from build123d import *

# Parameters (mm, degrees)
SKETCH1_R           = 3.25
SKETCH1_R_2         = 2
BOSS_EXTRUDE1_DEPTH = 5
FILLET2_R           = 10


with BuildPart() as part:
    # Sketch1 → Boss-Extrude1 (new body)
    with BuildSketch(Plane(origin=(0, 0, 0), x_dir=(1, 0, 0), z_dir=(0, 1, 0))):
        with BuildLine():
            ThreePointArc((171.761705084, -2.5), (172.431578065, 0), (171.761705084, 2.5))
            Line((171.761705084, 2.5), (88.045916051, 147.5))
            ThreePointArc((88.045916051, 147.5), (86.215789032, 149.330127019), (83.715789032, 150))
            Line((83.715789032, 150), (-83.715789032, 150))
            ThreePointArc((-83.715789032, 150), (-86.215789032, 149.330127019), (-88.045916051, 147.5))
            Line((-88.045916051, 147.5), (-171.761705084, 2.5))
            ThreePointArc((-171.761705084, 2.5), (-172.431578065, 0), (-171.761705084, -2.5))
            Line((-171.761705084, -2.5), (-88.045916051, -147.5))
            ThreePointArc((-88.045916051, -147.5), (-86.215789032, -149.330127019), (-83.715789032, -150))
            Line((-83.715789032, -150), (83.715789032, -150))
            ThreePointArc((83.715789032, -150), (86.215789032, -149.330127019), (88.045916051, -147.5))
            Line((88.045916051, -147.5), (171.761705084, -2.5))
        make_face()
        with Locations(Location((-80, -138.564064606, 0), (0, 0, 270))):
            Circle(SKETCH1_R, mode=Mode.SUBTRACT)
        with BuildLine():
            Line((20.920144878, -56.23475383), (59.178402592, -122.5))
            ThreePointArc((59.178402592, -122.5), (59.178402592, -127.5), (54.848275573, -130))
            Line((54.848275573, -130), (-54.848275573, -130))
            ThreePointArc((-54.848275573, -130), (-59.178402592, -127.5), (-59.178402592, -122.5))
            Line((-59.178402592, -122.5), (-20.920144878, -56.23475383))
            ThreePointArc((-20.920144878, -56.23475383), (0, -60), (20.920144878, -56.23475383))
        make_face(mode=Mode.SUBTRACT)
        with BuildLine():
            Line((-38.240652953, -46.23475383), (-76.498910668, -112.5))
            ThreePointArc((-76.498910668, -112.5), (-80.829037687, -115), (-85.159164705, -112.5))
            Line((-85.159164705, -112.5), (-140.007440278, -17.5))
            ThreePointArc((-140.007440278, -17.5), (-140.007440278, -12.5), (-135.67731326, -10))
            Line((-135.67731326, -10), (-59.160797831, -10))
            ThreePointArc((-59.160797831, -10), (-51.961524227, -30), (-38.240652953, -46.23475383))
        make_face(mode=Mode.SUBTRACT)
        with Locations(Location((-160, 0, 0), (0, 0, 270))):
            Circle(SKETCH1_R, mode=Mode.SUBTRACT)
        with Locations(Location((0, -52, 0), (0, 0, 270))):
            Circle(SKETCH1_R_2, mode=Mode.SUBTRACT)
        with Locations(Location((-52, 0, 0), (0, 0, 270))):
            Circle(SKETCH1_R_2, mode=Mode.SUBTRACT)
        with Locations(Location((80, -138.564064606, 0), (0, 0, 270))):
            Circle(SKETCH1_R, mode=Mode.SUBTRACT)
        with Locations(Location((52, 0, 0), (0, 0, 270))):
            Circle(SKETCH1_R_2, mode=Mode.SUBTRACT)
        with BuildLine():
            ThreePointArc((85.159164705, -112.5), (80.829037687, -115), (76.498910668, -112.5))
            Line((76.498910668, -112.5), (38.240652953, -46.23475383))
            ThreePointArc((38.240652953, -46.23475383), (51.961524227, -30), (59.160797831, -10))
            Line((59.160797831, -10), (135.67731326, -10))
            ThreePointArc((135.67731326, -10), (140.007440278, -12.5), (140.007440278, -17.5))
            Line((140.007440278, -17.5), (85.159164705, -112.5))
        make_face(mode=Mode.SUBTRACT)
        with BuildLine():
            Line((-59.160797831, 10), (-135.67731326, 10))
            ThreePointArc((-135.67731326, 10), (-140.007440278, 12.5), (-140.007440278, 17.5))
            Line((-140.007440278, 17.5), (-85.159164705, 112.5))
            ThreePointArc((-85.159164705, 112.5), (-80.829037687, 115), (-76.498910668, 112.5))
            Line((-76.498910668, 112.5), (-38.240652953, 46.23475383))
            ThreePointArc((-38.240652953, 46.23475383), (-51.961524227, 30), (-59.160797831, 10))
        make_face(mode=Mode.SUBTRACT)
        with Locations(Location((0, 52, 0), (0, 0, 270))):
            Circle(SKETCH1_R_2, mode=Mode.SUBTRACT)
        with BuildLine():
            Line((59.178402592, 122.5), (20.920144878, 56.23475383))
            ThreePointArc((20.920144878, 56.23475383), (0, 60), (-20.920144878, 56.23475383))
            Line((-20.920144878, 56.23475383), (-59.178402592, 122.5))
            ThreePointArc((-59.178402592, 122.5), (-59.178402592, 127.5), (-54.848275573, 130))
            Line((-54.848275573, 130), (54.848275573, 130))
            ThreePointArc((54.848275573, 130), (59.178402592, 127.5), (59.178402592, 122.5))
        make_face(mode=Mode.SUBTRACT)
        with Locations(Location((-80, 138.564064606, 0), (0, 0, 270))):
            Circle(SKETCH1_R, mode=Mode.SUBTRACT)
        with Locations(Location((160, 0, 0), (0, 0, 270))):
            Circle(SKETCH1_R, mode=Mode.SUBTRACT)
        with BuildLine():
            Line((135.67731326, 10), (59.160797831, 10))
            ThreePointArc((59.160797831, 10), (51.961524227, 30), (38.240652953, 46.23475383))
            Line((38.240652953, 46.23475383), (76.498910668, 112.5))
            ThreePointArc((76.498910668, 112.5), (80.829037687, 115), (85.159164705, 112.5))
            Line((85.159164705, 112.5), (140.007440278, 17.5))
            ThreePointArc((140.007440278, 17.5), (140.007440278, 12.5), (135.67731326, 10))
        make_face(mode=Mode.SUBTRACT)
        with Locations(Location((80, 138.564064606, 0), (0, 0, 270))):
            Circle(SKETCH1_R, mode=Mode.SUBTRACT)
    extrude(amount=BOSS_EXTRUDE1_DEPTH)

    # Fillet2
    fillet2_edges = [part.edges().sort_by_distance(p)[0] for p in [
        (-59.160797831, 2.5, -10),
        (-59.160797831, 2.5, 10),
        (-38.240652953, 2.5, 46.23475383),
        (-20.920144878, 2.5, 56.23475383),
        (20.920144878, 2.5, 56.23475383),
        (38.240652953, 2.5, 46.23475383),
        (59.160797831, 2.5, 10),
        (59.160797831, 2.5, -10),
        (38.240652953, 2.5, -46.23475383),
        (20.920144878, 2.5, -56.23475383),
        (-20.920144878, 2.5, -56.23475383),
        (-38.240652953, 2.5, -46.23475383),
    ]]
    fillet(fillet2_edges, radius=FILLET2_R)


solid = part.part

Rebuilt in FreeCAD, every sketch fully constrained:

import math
import FreeCAD as App
import Part
import Sketcher
from FreeCAD import Vector
Q = App.Units.Quantity


def edges_at(feature, points):
    """Names of the edges that pass closest to the given points."""
    edges = feature.Shape.Edges
    near = lambda p: min(range(len(edges)), key=lambda i: edges[i].distToShape(Part.Vertex(*p))[0])
    return sorted({f"Edge{near(p) + 1}" for p in points})

doc = App.newDocument("Part")
body = doc.addObject("PartDesign::Body", "Body")

sketch1 = body.newObject("Sketcher::SketchObject", "Sketch")
sketch1.AttachmentSupport = (doc.getObject("XZ_Plane"), [""])
sketch1.MapMode = "FlatFace"
sketch1.addGeometry([
    Part.ArcOfCircle(Part.Circle(Vector(167.4, 0, 0), Vector(0, 0, 1), 5), math.radians(-30), math.radians(30)),
    Part.LineSegment(Vector(171.8, -2.5, 0), Vector(88, -147.5, 0)),
    Part.ArcOfCircle(Part.Circle(Vector(83.7, -145, 0), Vector(0, 0, 1), 5), math.radians(-90), math.radians(-30)),
    Part.LineSegment(Vector(83.7, -150, 0), Vector(-83.7, -150, 0)),
    Part.ArcOfCircle(Part.Circle(Vector(-83.7, -145, 0), Vector(0, 0, 1), 5), math.radians(-150), math.radians(-90)),
    Part.LineSegment(Vector(-88, -147.5, 0), Vector(-171.8, -2.5, 0)),
    Part.ArcOfCircle(Part.Circle(Vector(-167.4, 0, 0), Vector(0, 0, 1), 5), math.radians(150), math.radians(210)),
    Part.LineSegment(Vector(-171.8, 2.5, 0), Vector(-88, 147.5, 0)),
    Part.ArcOfCircle(Part.Circle(Vector(-83.7, 145, 0), Vector(0, 0, 1), 5), math.radians(90), math.radians(150)),
    Part.LineSegment(Vector(-83.7, 150, 0), Vector(83.7, 150, 0)),
    Part.ArcOfCircle(Part.Circle(Vector(83.7, 145, 0), Vector(0, 0, 1), 5), math.radians(30), math.radians(90)),
    Part.LineSegment(Vector(88, 147.5, 0), Vector(171.8, 2.5, 0)),
    Part.Circle(Vector(-80, 138.6, 0), Vector(0, 0, 1), 3.2),
    Part.ArcOfCircle(Part.Circle(Vector(0, 0, 0), Vector(0, 0, 1), 60), math.radians(130), math.radians(170)),
    Part.LineSegment(Vector(-38.2, 46.2, 0), Vector(-76.5, 112.5, 0)),
    Part.ArcOfCircle(Part.Circle(Vector(-80.8, 110, 0), Vector(0, 0, 1), 5), math.radians(30), math.radians(150)),
    Part.LineSegment(Vector(-85.2, 112.5, 0), Vector(-140, 17.5, 0)),
    Part.ArcOfCircle(Part.Circle(Vector(-135.7, 15, 0), Vector(0, 0, 1), 5), math.radians(150), math.radians(270)),
    Part.LineSegment(Vector(-135.7, 10, 0), Vector(-59.2, 10, 0)),
    Part.Circle(Vector(-160, 0, 0), Vector(0, 0, 1), 3.2),
    Part.Circle(Vector(-52, 0, 0), Vector(0, 0, 1), 2),
    Part.Circle(Vector(80, 138.6, 0), Vector(0, 0, 1), 3.2),
    Part.ArcOfCircle(Part.Circle(Vector(0, 0, 0), Vector(0, 0, 1), 60), math.radians(70), math.radians(110)),
    Part.LineSegment(Vector(20.9, 56.2, 0), Vector(59.2, 122.5, 0)),
    Part.ArcOfCircle(Part.Circle(Vector(54.8, 125, 0), Vector(0, 0, 1), 5), math.radians(-30), math.radians(90)),
    Part.LineSegment(Vector(54.8, 130, 0), Vector(-54.8, 130, 0)),
    Part.ArcOfCircle(Part.Circle(Vector(-54.8, 125, 0), Vector(0, 0, 1), 5), math.radians(90), math.radians(210)),
    Part.LineSegment(Vector(-59.2, 122.5, 0), Vector(-20.9, 56.2, 0)),
    Part.Circle(Vector(0, 52, 0), Vector(0, 0, 1), 2),
    Part.Circle(Vector(52, 0, 0), Vector(0, 0, 1), 2),
    Part.LineSegment(Vector(140, 17.5, 0), Vector(85.2, 112.5, 0)),
    Part.ArcOfCircle(Part.Circle(Vector(80.8, 110, 0), Vector(0, 0, 1), 5), math.radians(30), math.radians(150)),
    Part.LineSegment(Vector(76.5, 112.5, 0), Vector(38.2, 46.2, 0)),
    Part.ArcOfCircle(Part.Circle(Vector(0, 0, 0), Vector(0, 0, 1), 60), math.radians(10), math.radians(50)),
    Part.LineSegment(Vector(59.2, 10, 0), Vector(135.7, 10, 0)),
    Part.ArcOfCircle(Part.Circle(Vector(135.7, 15, 0), Vector(0, 0, 1), 5), math.radians(-90), math.radians(30)),
    Part.Circle(Vector(160, 0, 0), Vector(0, 0, 1), 3.2),
    Part.ArcOfCircle(Part.Circle(Vector(0, 0, 0), Vector(0, 0, 1), 60), math.radians(-170), math.radians(-130)),
    Part.LineSegment(Vector(-59.2, -10, 0), Vector(-135.7, -10, 0)),
    Part.ArcOfCircle(Part.Circle(Vector(-135.7, -15, 0), Vector(0, 0, 1), 5), math.radians(90), math.radians(210)),
    Part.LineSegment(Vector(-140, -17.5, 0), Vector(-85.2, -112.5, 0)),
    Part.ArcOfCircle(Part.Circle(Vector(-80.8, -110, 0), Vector(0, 0, 1), 5), math.radians(-150), math.radians(-30)),
    Part.LineSegment(Vector(-76.5, -112.5, 0), Vector(-38.2, -46.2, 0)),
    Part.Circle(Vector(-80, -138.6, 0), Vector(0, 0, 1), 3.2),
    Part.Circle(Vector(0, -52, 0), Vector(0, 0, 1), 2),
    Part.ArcOfCircle(Part.Circle(Vector(135.7, -15, 0), Vector(0, 0, 1), 5), math.radians(-30), math.radians(90)),
    Part.LineSegment(Vector(135.7, -10, 0), Vector(59.2, -10, 0)),
    Part.ArcOfCircle(Part.Circle(Vector(0, 0, 0), Vector(0, 0, 1), 60), math.radians(-50), math.radians(-10)),
    Part.LineSegment(Vector(38.2, -46.2, 0), Vector(76.5, -112.5, 0)),
    Part.ArcOfCircle(Part.Circle(Vector(80.8, -110, 0), Vector(0, 0, 1), 5), math.radians(-150), math.radians(-30)),
    Part.LineSegment(Vector(85.2, -112.5, 0), Vector(140, -17.5, 0)),
    Part.ArcOfCircle(Part.Circle(Vector(54.8, -125, 0), Vector(0, 0, 1), 5), math.radians(-90), math.radians(30)),
    Part.LineSegment(Vector(59.2, -122.5, 0), Vector(20.9, -56.2, 0)),
    Part.ArcOfCircle(Part.Circle(Vector(0, 0, 0), Vector(0, 0, 1), 60), math.radians(-110), math.radians(-70)),
    Part.LineSegment(Vector(-20.9, -56.2, 0), Vector(-59.2, -122.5, 0)),
    Part.ArcOfCircle(Part.Circle(Vector(-54.8, -125, 0), Vector(0, 0, 1), 5), math.radians(150), math.radians(270)),
    Part.LineSegment(Vector(-54.8, -130, 0), Vector(54.8, -130, 0)),
    Part.Circle(Vector(80, -138.6, 0), Vector(0, 0, 1), 3.2),
], False)
sketch1.addConstraint([
    Sketcher.Constraint("Tangent", 0, 1, 1, 1),
    Sketcher.Constraint("Tangent", 1, 2, 2, 2),
    Sketcher.Constraint("Tangent", 2, 1, 3, 1),
    Sketcher.Constraint("Tangent", 3, 2, 4, 2),
    Sketcher.Constraint("Tangent", 4, 1, 5, 1),
    Sketcher.Constraint("Tangent", 5, 2, 6, 2),
    Sketcher.Constraint("Tangent", 6, 1, 7, 1),
    Sketcher.Constraint("Tangent", 7, 2, 8, 2),
    Sketcher.Constraint("Tangent", 8, 1, 9, 1),
    Sketcher.Constraint("Tangent", 9, 2, 10, 2),
    Sketcher.Constraint("Tangent", 10, 1, 11, 1),
    Sketcher.Constraint("Tangent", 11, 2, 0, 2),
    Sketcher.Constraint("Coincident", 13, 1, 14, 1),
    Sketcher.Constraint("Tangent", 14, 2, 15, 1),
    Sketcher.Constraint("Tangent", 15, 2, 16, 1),
    Sketcher.Constraint("Tangent", 16, 2, 17, 1),
    Sketcher.Constraint("Tangent", 17, 2, 18, 1),
    Sketcher.Constraint("Coincident", 18, 2, 13, 2),
    Sketcher.Constraint("Coincident", 22, 1, 23, 1),
    Sketcher.Constraint("Tangent", 23, 2, 24, 1),
    Sketcher.Constraint("Tangent", 24, 2, 25, 1),
    Sketcher.Constraint("Tangent", 25, 2, 26, 1),
    Sketcher.Constraint("Tangent", 26, 2, 27, 1),
    Sketcher.Constraint("Coincident", 27, 2, 22, 2),
    Sketcher.Constraint("Tangent", 30, 2, 31, 1),
    Sketcher.Constraint("Tangent", 31, 2, 32, 1),
    Sketcher.Constraint("Coincident", 32, 2, 33, 2),
    Sketcher.Constraint("Coincident", 33, 1, 34, 1),
    Sketcher.Constraint("Tangent", 34, 2, 35, 1),
    Sketcher.Constraint("Tangent", 35, 2, 30, 1),
    Sketcher.Constraint("Coincident", 37, 1, 38, 1),
    Sketcher.Constraint("Tangent", 38, 2, 39, 1),
    Sketcher.Constraint("Tangent", 39, 2, 40, 1),
    Sketcher.Constraint("Tangent", 40, 2, 41, 1),
    Sketcher.Constraint("Tangent", 41, 2, 42, 1),
    Sketcher.Constraint("Coincident", 42, 2, 37, 2),
    Sketcher.Constraint("Tangent", 45, 2, 46, 1),
    Sketcher.Constraint("Coincident", 46, 2, 47, 2),
    Sketcher.Constraint("Coincident", 47, 1, 48, 1),
    Sketcher.Constraint("Tangent", 48, 2, 49, 1),
    Sketcher.Constraint("Tangent", 49, 2, 50, 1),
    Sketcher.Constraint("Tangent", 50, 2, 45, 1),
    Sketcher.Constraint("Tangent", 51, 2, 52, 1),
    Sketcher.Constraint("Coincident", 52, 2, 53, 2),
    Sketcher.Constraint("Coincident", 53, 1, 54, 1),
    Sketcher.Constraint("Tangent", 54, 2, 55, 1),
    Sketcher.Constraint("Tangent", 55, 2, 56, 1),
    Sketcher.Constraint("Tangent", 56, 2, 51, 1),
    Sketcher.Constraint("Horizontal", 3),
    Sketcher.Constraint("Horizontal", 9),
    Sketcher.Constraint("Horizontal", 18),
    Sketcher.Constraint("Horizontal", 25),
    Sketcher.Constraint("Horizontal", 34),
    Sketcher.Constraint("Horizontal", 38),
    Sketcher.Constraint("Horizontal", 46),
    Sketcher.Constraint("Horizontal", 56),
    Sketcher.Constraint("Coincident", 13, 3, -1, 1),
    Sketcher.Constraint("Coincident", 22, 3, -1, 1),
    Sketcher.Constraint("Coincident", 33, 3, -1, 1),
    Sketcher.Constraint("Coincident", 37, 3, -1, 1),
    Sketcher.Constraint("Coincident", 47, 3, -1, 1),
    Sketcher.Constraint("Coincident", 53, 3, -1, 1),
    Sketcher.Constraint("Equal", 0, 2),
    Sketcher.Constraint("Equal", 2, 4),
    Sketcher.Constraint("Equal", 4, 6),
    Sketcher.Constraint("Equal", 6, 8),
    Sketcher.Constraint("Equal", 8, 10),
    Sketcher.Constraint("Equal", 10, 15),
    Sketcher.Constraint("Equal", 15, 17),
    Sketcher.Constraint("Equal", 12, 19),
    Sketcher.Constraint("Equal", 19, 21),
    Sketcher.Constraint("Equal", 13, 22),
    Sketcher.Constraint("Equal", 17, 24),
    Sketcher.Constraint("Equal", 24, 26),
    Sketcher.Constraint("Equal", 20, 28),
    Sketcher.Constraint("Equal", 28, 29),
    Sketcher.Constraint("Equal", 26, 31),
    Sketcher.Constraint("Equal", 22, 33),
    Sketcher.Constraint("Equal", 31, 35),
    Sketcher.Constraint("Equal", 21, 36),
    Sketcher.Constraint("Equal", 33, 37),
    Sketcher.Constraint("Equal", 35, 39),
    Sketcher.Constraint("Equal", 39, 41),
    Sketcher.Constraint("Equal", 36, 43),
    Sketcher.Constraint("Equal", 29, 44),
    Sketcher.Constraint("Equal", 41, 45),
    Sketcher.Constraint("Equal", 37, 47),
    Sketcher.Constraint("Equal", 45, 49),
    Sketcher.Constraint("Equal", 49, 51),
    Sketcher.Constraint("Equal", 47, 53),
    Sketcher.Constraint("Equal", 51, 55),
    Sketcher.Constraint("Equal", 43, 57),
    Sketcher.Constraint("Symmetric", 0, 3, 6, 3, -1, 1),
    Sketcher.Constraint("Symmetric", 2, 3, 8, 3, -1, 1),
    Sketcher.Constraint("Symmetric", 20, 3, 29, 3, -1, 1),
    Sketcher.Constraint("Symmetric", 19, 3, 36, 3, -1, 1),
    Sketcher.Constraint("Symmetric", 35, 3, 39, 3, -1, 1),
    Sketcher.Constraint("Symmetric", 31, 3, 41, 3, -1, 1),
    Sketcher.Constraint("Symmetric", 21, 3, 43, 3, -1, 1),
    Sketcher.Constraint("Symmetric", 28, 3, 44, 3, -1, 1),
    Sketcher.Constraint("Symmetric", 17, 3, 45, 3, -1, 1),
    Sketcher.Constraint("Symmetric", 15, 3, 49, 3, -1, 1),
    Sketcher.Constraint("Symmetric", 26, 3, 51, 3, -1, 1),
    Sketcher.Constraint("Symmetric", 12, 3, 57, 3, -1, 1),
    Sketcher.Constraint("Symmetric", 23, 2, 54, 2, -1, 1),
    Sketcher.Constraint("Symmetric", 12, 3, 21, 3, -2),
    Sketcher.Constraint("Symmetric", 15, 3, 31, 3, -2),
    Sketcher.Constraint("Symmetric", 17, 3, 35, 3, -2),
    Sketcher.Constraint("Symmetric", 1, 2, 4, 1, -2),
    Sketcher.Constraint("Symmetric", 23, 2, 26, 2, -2),
    Sketcher.Constraint("PointOnObject", 19, 3, -1),
    Sketcher.Constraint("PointOnObject", 20, 3, -1),
    Sketcher.Constraint("PointOnObject", 28, 3, -2),
    Sketcher.Constraint("Parallel", 5, 11),
    Sketcher.Constraint("Parallel", 11, 14),
    Sketcher.Constraint("Parallel", 7, 16),
    Sketcher.Constraint("Parallel", 16, 23),
    Sketcher.Constraint("Parallel", 23, 32),
    Sketcher.Constraint("Parallel", 32, 42),
    Sketcher.Constraint("Parallel", 40, 48),
    Sketcher.Constraint("Parallel", 48, 52),
    Sketcher.Constraint("Equal", 14, 23),
    Sketcher.Constraint("Diameter", 20, 4.0),
    Sketcher.Constraint("Radius", 0, 5.0),
    Sketcher.Constraint("Radius", 13, 60.0),
    Sketcher.Constraint("Diameter", 12, 6.5),
    Sketcher.Constraint("Angle", 1, Q("-120 deg")),
    Sketcher.Constraint("DistanceY", 2, 3, -1, 1, 145.0),
    Sketcher.Constraint("DistanceX", 12, 3, -1, 1, 80.0),
    Sketcher.Constraint("DistanceY", -1, 1, 15, 3, 110.0),
    Sketcher.Constraint("DistanceY", -1, 1, 17, 3, 15.0),
    Sketcher.Constraint("DistanceX", 19, 3, -1, 1, 160.0),
    Sketcher.Constraint("DistanceX", 20, 3, -1, 1, 52.0),
    Sketcher.Constraint("DistanceY", -1, 1, 24, 3, 125.0),
    Sketcher.Constraint("DistanceY", -1, 1, 28, 3, 52.0),
    Sketcher.Constraint("DistanceX", 3, 2, 3, 1, 167.431578),
    Sketcher.Constraint("DistanceX", 25, 2, 25, 1, 109.696551),
    Sketcher.Constraint("DistanceY", -1, 1, 12, 3, 138.564065),
])
pad1 = body.newObject("PartDesign::Pad", "Pad")
pad1.Profile = sketch1
pad1.Length = 5
pad1.Reversed = True
doc.recompute()

fillet = body.newObject("PartDesign::Fillet", "Fillet")
fillet.Base = (pad1, edges_at(pad1, [
    (-59.161, 2.5, -10),
    (-59.161, 2.5, 10),
    (-38.241, 2.5, 46.235),
    (-20.92, 2.5, 56.235),
    (20.92, 2.5, 56.235),
    (38.241, 2.5, 46.235),
    (59.161, 2.5, 10),
    (59.161, 2.5, -10),
    (38.241, 2.5, -46.235),
    (20.92, 2.5, -56.235),
    (-20.92, 2.5, -56.235),
    (-38.241, 2.5, -46.235),
]))
fillet.Radius = 10

doc.recompute()
